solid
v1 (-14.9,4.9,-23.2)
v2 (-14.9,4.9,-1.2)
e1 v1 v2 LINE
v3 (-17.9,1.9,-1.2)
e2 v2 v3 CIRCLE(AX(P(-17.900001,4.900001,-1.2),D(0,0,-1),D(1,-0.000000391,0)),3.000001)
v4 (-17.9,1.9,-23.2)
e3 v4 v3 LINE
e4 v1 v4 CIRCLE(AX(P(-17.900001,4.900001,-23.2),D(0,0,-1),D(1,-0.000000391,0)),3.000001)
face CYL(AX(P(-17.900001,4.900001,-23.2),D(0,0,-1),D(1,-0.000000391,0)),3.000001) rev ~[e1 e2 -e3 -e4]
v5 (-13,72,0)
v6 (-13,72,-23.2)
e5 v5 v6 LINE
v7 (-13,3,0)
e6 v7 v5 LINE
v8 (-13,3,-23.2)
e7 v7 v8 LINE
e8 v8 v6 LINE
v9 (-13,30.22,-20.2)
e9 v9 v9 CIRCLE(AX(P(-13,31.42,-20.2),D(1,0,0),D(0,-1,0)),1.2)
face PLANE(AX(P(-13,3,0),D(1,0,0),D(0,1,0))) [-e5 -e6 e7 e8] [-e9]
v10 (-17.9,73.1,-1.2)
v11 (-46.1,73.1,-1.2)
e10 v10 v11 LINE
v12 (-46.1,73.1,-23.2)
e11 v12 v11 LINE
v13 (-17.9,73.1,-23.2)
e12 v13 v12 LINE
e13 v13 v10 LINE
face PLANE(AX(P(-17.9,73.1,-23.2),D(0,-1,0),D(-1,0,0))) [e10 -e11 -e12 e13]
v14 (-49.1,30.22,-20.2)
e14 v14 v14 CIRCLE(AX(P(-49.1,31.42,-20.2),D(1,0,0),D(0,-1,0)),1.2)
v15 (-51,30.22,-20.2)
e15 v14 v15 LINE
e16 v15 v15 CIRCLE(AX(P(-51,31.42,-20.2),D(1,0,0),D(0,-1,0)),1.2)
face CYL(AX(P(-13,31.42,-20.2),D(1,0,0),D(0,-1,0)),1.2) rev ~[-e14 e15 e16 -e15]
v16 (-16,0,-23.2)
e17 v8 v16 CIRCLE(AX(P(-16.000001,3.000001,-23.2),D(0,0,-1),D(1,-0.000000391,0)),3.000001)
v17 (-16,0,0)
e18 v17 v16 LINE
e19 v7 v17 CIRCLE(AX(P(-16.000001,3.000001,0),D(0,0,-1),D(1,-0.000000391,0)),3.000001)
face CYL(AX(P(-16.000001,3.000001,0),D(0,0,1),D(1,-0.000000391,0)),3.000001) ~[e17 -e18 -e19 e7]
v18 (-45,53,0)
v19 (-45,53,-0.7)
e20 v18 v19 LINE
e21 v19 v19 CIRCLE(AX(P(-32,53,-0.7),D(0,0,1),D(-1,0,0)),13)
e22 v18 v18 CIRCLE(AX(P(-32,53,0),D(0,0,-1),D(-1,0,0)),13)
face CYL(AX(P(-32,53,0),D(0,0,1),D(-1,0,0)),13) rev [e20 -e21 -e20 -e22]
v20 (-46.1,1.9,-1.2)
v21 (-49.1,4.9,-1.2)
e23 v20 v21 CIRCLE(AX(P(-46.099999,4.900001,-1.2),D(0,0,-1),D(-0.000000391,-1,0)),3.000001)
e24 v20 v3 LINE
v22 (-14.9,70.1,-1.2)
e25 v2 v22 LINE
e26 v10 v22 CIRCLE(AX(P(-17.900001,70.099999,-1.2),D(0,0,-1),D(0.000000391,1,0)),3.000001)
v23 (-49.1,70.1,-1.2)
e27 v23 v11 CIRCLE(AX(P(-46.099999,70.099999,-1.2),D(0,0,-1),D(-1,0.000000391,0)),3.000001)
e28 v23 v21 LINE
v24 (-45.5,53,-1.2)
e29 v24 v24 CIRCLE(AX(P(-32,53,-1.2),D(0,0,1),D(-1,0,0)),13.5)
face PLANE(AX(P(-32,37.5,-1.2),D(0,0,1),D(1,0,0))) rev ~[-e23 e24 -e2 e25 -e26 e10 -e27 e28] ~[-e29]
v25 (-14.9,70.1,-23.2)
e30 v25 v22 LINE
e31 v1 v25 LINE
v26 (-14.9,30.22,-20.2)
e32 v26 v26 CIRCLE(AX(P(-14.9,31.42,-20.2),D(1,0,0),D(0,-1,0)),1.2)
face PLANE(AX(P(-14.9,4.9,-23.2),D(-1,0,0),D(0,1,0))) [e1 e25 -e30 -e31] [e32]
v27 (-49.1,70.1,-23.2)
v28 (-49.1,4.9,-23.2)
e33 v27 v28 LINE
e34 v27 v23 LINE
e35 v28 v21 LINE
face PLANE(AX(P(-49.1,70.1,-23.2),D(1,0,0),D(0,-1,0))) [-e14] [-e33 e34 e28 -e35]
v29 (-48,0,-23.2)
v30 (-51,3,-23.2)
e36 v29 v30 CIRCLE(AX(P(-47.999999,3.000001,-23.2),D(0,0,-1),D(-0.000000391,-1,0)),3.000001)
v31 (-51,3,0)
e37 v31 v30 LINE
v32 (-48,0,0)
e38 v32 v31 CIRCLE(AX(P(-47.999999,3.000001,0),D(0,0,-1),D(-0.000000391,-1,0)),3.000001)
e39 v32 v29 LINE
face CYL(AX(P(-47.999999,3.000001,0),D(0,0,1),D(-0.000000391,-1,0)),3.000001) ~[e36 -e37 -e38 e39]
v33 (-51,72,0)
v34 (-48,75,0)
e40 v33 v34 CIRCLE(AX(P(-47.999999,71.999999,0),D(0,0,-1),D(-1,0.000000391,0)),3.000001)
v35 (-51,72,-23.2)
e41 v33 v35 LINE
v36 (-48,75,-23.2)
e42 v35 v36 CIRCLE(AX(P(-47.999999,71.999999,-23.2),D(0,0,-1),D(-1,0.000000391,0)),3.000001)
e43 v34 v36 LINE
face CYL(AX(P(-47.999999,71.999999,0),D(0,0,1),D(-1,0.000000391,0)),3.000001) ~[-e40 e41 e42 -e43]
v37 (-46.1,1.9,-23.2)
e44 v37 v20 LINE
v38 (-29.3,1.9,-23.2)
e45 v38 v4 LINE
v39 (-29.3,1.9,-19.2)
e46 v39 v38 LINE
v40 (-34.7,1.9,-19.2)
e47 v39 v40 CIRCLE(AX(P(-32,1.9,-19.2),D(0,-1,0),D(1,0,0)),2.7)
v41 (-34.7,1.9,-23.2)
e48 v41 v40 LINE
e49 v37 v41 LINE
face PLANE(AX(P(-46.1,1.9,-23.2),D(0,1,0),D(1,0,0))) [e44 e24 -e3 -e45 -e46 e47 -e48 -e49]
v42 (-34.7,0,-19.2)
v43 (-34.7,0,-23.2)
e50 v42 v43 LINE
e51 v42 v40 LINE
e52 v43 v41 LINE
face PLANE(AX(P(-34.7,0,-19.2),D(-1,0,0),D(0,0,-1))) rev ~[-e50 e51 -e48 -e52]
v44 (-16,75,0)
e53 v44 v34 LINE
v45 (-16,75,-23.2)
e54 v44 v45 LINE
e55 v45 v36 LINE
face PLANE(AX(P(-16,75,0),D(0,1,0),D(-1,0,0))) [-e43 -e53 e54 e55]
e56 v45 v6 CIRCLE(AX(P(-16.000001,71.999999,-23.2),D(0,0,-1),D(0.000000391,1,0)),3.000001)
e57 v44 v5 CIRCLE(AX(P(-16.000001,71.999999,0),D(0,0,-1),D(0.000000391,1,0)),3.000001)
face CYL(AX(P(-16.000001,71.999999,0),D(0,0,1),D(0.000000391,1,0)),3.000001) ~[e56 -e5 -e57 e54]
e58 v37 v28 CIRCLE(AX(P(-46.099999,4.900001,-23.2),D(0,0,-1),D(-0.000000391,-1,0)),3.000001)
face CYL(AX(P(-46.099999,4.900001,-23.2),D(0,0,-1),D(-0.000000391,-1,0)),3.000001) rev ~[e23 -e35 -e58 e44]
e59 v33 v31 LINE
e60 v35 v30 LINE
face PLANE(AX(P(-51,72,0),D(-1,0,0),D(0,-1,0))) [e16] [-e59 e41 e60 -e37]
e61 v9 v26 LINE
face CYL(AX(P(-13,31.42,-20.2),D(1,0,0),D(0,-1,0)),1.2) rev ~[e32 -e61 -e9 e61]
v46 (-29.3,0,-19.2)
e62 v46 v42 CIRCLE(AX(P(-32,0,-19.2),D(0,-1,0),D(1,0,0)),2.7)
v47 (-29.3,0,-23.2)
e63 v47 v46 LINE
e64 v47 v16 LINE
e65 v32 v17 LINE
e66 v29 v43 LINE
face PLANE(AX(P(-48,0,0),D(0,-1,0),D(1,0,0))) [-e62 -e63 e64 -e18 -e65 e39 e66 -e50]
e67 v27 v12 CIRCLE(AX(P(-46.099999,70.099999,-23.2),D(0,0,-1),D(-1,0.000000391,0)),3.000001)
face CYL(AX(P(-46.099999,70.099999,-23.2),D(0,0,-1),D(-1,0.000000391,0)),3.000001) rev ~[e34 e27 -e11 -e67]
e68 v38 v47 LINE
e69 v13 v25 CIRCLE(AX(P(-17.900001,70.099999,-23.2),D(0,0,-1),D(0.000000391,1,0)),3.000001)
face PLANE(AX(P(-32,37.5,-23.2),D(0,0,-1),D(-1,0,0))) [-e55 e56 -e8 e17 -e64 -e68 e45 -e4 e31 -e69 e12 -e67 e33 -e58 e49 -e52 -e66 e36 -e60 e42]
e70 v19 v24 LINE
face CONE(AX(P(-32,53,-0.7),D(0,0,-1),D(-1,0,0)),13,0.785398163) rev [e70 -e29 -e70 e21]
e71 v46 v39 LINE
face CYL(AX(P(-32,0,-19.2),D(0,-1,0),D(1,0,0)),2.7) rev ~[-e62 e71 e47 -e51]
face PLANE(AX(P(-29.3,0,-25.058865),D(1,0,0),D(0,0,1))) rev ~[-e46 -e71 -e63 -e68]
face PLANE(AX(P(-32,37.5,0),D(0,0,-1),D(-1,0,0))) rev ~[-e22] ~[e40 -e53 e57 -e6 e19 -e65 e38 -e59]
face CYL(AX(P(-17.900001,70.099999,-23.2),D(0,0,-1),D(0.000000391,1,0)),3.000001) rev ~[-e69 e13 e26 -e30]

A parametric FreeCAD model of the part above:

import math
import FreeCAD as App
import Part
import Sketcher
Q = App.Units.Quantity


def edges_at(feature, points):
    """Names of the edges that pass closest to the given points."""
    edges = feature.Shape.Edges
    near = lambda p: min(range(len(edges)), key=lambda i: edges[i].distToShape(Part.Vertex(*p))[0])
    return sorted({f"Edge{near(p) + 1}" for p in points})

doc = App.newDocument("Part")
body = doc.addObject("PartDesign::Body", "Body")

# Sketch on XY plane
sketch1 = body.newObject("Sketcher::SketchObject", "Sketch")
sketch1.AttachmentSupport = (doc.getObject("XY_Plane"), [""])
sketch1.MapMode = "FlatFace"
sketch1.addGeometry([
    Part.ArcOfCircle(Part.Circle(App.Vector(-48, 72, 0), App.Vector(0, 0, 1), 3), math.radians(90), math.radians(180)),  # 0
    Part.LineSegment(App.Vector(-51, 72, 0), App.Vector(-51, 3, 0)),  # 1
    Part.ArcOfCircle(Part.Circle(App.Vector(-48, 3, 0), App.Vector(0, 0, 1), 3), math.radians(-180), math.radians(-90)),  # 2
    Part.LineSegment(App.Vector(-48, 0, 0), App.Vector(-16, 0, 0)),  # 3
    Part.ArcOfCircle(Part.Circle(App.Vector(-16, 3, 0), App.Vector(0, 0, 1), 3), math.radians(-90), math.radians(0)),  # 4
    Part.LineSegment(App.Vector(-13, 3, 0), App.Vector(-13, 72, 0)),  # 5
    Part.ArcOfCircle(Part.Circle(App.Vector(-16, 72, 0), App.Vector(0, 0, 1), 3), math.radians(0), math.radians(90)),  # 6
    Part.LineSegment(App.Vector(-16, 75, 0), App.Vector(-48, 75, 0)),  # 7
    Part.Circle(App.Vector(-32, 53, 0), App.Vector(0, 0, 1), 13),  # 8
], False)
sketch1.addConstraint([
    Sketcher.Constraint("Tangent", 0, 2, 1, 1),
    Sketcher.Constraint("Tangent", 1, 2, 2, 1),
    Sketcher.Constraint("Tangent", 2, 2, 3, 1),
    Sketcher.Constraint("Tangent", 3, 2, 4, 1),
    Sketcher.Constraint("Tangent", 4, 2, 5, 1),
    Sketcher.Constraint("Tangent", 5, 2, 6, 1),
    Sketcher.Constraint("Tangent", 6, 2, 7, 1),
    Sketcher.Constraint("Tangent", 7, 2, 0, 1),
    Sketcher.Constraint("Vertical", 1),
    Sketcher.Constraint("Horizontal", 3),
    Sketcher.Constraint("Vertical", 5),
    Sketcher.Constraint("Horizontal", 7),
    Sketcher.Constraint("Equal", 0, 2),
    Sketcher.Constraint("Equal", 2, 4),
    Sketcher.Constraint("Equal", 4, 6),
    Sketcher.Constraint("PointOnObject", 2, 2, -1),
    Sketcher.Constraint("Diameter", 8, Q("26 mm")),
    Sketcher.Constraint("Radius", 0, Q("3.000001 mm")),
    Sketcher.Constraint("DistanceX", 3, 1, 3, 2, Q("32 mm")),
    Sketcher.Constraint("DistanceY", 1, 2, 1, 1, Q("69 mm")),
    Sketcher.Constraint("DistanceX", 0, 3, -1, 1, Q("47.999999 mm")),
    Sketcher.Constraint("DistanceX", 8, 3, -1, 1, Q("32 mm")),
    Sketcher.Constraint("DistanceY", -1, 1, 8, 3, Q("53 mm")),
])
pad1 = body.newObject("PartDesign::Pad", "Pad")
pad1.Profile = sketch1
pad1.Length = 23.2

# Sketch on XY plane
sketch2 = body.newObject("Sketcher::SketchObject", "Sketch001")
sketch2.AttachmentSupport = (doc.getObject("XY_Plane"), [""])
sketch2.MapMode = "FlatFace"
sketch2.AttachmentOffset = App.Placement(App.Vector(0, 0, 23.2), App.Rotation())
sketch2.addGeometry([
    Part.LineSegment(App.Vector(-17.9, 73.1, 0), App.Vector(-46.1, 73.1, 0)),  # 0
    Part.ArcOfCircle(Part.Circle(App.Vector(-46.1, 70.1, 0), App.Vector(0, 0, 1), 3), math.radians(90), math.radians(180)),  # 1
    Part.LineSegment(App.Vector(-49.1, 70.1, 0), App.Vector(-49.1, 4.9, 0)),  # 2
    Part.ArcOfCircle(Part.Circle(App.Vector(-46.1, 4.9, 0), App.Vector(0, 0, 1), 3), math.radians(-180), math.radians(-90)),  # 3
    Part.LineSegment(App.Vector(-46.1, 1.9, 0), App.Vector(-17.9, 1.9, 0)),  # 4
    Part.ArcOfCircle(Part.Circle(App.Vector(-17.9, 4.9, 0), App.Vector(0, 0, 1), 3), math.radians(-90), math.radians(0)),  # 5
    Part.LineSegment(App.Vector(-14.9, 4.9, 0), App.Vector(-14.9, 70.1, 0)),  # 6
    Part.ArcOfCircle(Part.Circle(App.Vector(-17.9, 70.1, 0), App.Vector(0, 0, 1), 3), math.radians(0), math.radians(90)),  # 7
], False)
sketch2.addConstraint([
    Sketcher.Constraint("Tangent", 0, 2, 1, 1),
    Sketcher.Constraint("Tangent", 1, 2, 2, 1),
    Sketcher.Constraint("Tangent", 2, 2, 3, 1),
    Sketcher.Constraint("Tangent", 3, 2, 4, 1),
    Sketcher.Constraint("Tangent", 4, 2, 5, 1),
    Sketcher.Constraint("Tangent", 5, 2, 6, 1),
    Sketcher.Constraint("Tangent", 6, 2, 7, 1),
    Sketcher.Constraint("Tangent", 7, 2, 0, 1),
    Sketcher.Constraint("Horizontal", 0),
    Sketcher.Constraint("Vertical", 2),
    Sketcher.Constraint("Horizontal", 4),
    Sketcher.Constraint("Vertical", 6),
    Sketcher.Constraint("Equal", 1, 3),
    Sketcher.Constraint("Equal", 3, 5),
    Sketcher.Constraint("Equal", 5, 7),
    Sketcher.Constraint("Radius", 1, Q("3.000001 mm")),
    Sketcher.Constraint("DistanceX", 0, 2, 0, 1, Q("28.2 mm")),
    Sketcher.Constraint("DistanceY", 2, 2, 2, 1, Q("65.2 mm")),
    Sketcher.Constraint("DistanceX", 1, 3, -1, 1, Q("46.099999 mm")),
    Sketcher.Constraint("DistanceY", -1, 1, 1, 3, Q("70.099999 mm")),
])
pocket1 = body.newObject("PartDesign::Pocket", "Pocket")
pocket1.Profile = sketch2
pocket1.Length = 22
doc.recompute()

chamfer = body.newObject("PartDesign::Chamfer", "Chamfer")
chamfer.Base = (pocket1, edges_at(pocket1, [(-45, 53, 1.2)]))
chamfer.Size = 0.5

# Sketch on XZ plane
sketch3 = body.newObject("Sketcher::SketchObject", "Sketch002")
sketch3.AttachmentSupport = (doc.getObject("XZ_Plane"), [""])
sketch3.MapMode = "FlatFace"
sketch3.addGeometry([
    Part.ArcOfCircle(Part.Circle(App.Vector(-32, 25.1, 0), App.Vector(0, 0, 1), 2.7), math.radians(0), math.radians(180)),
    Part.LineSegment(App.Vector(-34.7, 25.1, 0), App.Vector(-34.7, 19.2, 0)),
    Part.ArcOfCircle(Part.Circle(App.Vector(-32, 19.2, 0), App.Vector(0, 0, 1), 2.7), math.radians(180), math.radians(360)),
    Part.LineSegment(App.Vector(-29.3, 19.2, 0), App.Vector(-29.3, 25.1, 0)),
], False)
sketch3.addConstraint([
    Sketcher.Constraint("Tangent", 0, 2, 1, 1),
    Sketcher.Constraint("Tangent", 1, 2, 2, 1),
    Sketcher.Constraint("Tangent", 2, 2, 3, 1),
    Sketcher.Constraint("Tangent", 3, 2, 0, 1),
    Sketcher.Constraint("Vertical", 1),
    Sketcher.Constraint("Vertical", 3),
    Sketcher.Constraint("Radius", 0, Q("2.7 mm")),
    Sketcher.Constraint("DistanceX", 0, 3, -1, 1, Q("32 mm")),
    Sketcher.Constraint("DistanceY", -1, 1, 2, 3, Q("19.2 mm")),
    Sketcher.Constraint("DistanceY", 1, 2, 1, 1, Q("5.858865 mm")),
])
pocket2 = body.newObject("PartDesign::Pocket", "Pocket001")
pocket2.Profile = sketch3
pocket2.Length = 5

# Sketch on YZ plane
sketch4 = body.newObject("Sketcher::SketchObject", "Sketch003")
sketch4.AttachmentSupport = (doc.getObject("YZ_Plane"), [""])
sketch4.MapMode = "FlatFace"
sketch4.AttachmentOffset = App.Placement(App.Vector(0, 0, -51), App.Rotation())
sketch4.addGeometry(Part.Circle(App.Vector(31.4, 20.2, 0), App.Vector(0, 0, 1), 1.2), False)
sketch4.addConstraint([
    Sketcher.Constraint("Diameter", 0, Q("2.4 mm")),
    Sketcher.Constraint("DistanceY", -1, 1, 0, 3, Q("20.2 mm")),
    Sketcher.Constraint("DistanceX", -1, 1, 0, 3, Q("31.42 mm")),
])
pocket3 = body.newObject("PartDesign::Pocket", "Pocket002")
pocket3.Profile = sketch4
pocket3.Type = "ThroughAll"
pocket3.Reversed = True
body2 = doc.addObject("PartDesign::Body", "Body001")
doc.recompute()

body.Placement = App.Placement(App.Vector(-64, 0, 0), App.Rotation(App.Vector(0, 1, 0), 180))
boolean = body2.newObject("PartDesign::Boolean", "Boolean")
boolean.Type = "Fuse"
boolean.addObjects([body])

doc.recompute()
